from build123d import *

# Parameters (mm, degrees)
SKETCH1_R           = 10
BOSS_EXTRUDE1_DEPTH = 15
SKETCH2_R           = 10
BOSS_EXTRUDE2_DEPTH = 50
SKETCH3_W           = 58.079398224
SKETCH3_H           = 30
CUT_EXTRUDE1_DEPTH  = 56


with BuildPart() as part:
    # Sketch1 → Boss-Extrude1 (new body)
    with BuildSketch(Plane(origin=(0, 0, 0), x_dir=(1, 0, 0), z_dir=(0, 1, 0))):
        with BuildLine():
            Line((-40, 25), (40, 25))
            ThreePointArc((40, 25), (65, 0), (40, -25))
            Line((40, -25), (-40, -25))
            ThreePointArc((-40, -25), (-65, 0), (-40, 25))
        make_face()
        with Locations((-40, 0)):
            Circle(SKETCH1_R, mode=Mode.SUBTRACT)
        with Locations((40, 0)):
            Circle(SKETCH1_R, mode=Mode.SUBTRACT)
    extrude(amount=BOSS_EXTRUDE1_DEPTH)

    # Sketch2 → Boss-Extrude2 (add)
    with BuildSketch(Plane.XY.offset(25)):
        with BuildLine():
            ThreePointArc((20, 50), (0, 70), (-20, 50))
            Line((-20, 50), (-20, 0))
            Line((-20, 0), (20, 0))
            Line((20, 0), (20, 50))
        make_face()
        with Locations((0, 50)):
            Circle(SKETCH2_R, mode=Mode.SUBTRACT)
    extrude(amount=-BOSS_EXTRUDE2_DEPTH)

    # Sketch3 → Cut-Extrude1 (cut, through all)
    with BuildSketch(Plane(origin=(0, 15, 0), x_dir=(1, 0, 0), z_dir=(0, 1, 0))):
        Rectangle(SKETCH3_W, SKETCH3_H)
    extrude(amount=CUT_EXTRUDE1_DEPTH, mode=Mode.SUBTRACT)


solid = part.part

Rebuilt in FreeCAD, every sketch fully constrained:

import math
import FreeCAD as App
import Part
import Sketcher

V = App.Vector
Q = App.Units.Quantity


def add_polygon(sketch, points):
    """Adds a closed chain of lines whose ends are joined by coincident constraints."""
    first, n = sketch.GeometryCount, len(points)
    for a, b in zip(points, points[1:] + points[:1]):
        sketch.addGeometry(Part.LineSegment(App.Vector(*a, 0), App.Vector(*b, 0)), False)
    for i in range(n):
        sketch.addConstraint(Sketcher.Constraint("Coincident", first + i, 2, first + (i + 1) % n, 1))

doc = App.newDocument("Part")
body = doc.addObject("PartDesign::Body", "Body")

sketch1 = body.newObject("Sketcher::SketchObject", "Sketch")
sketch1.AttachmentSupport = (doc.getObject("XZ_Plane"), [""])
sketch1.MapMode = "FlatFace"
sketch1.addGeometry([
    Part.LineSegment(V(40, -25, 0), V(-40, -25, 0)),
    Part.ArcOfCircle(Part.Circle(V(-40, 0, 0), V(0, 0, 1), 25), math.radians(90), math.radians(270)),
    Part.LineSegment(V(-40, 25, 0), V(40, 25, 0)),
    Part.ArcOfCircle(Part.Circle(V(40, 0, 0), V(0, 0, 1), 25), math.radians(-90), math.radians(90)),
    Part.Circle(V(40, 0, 0), V(0, 0, 1), 10),
    Part.Circle(V(-40, 0, 0), V(0, 0, 1), 10),
], False)
sketch1.addConstraint([
    Sketcher.Constraint("Tangent", 0, 2, 1, 2),
    Sketcher.Constraint("Tangent", 1, 1, 2, 1),
    Sketcher.Constraint("Tangent", 2, 2, 3, 2),
    Sketcher.Constraint("Tangent", 3, 1, 0, 1),
    Sketcher.Constraint("Horizontal", 0),
    Sketcher.Constraint("Horizontal", 2),
    Sketcher.Constraint("Coincident", 4, 3, 3, 3),
    Sketcher.Constraint("Coincident", 5, 3, 1, 3),
    Sketcher.Constraint("Equal", 4, 5),
    Sketcher.Constraint("Symmetric", 1, 3, 3, 3, -1, 1),
    Sketcher.Constraint("Diameter", 4, Q("20 mm")),
    Sketcher.Constraint("Radius", 1, Q("25 mm")),
    Sketcher.Constraint("DistanceX", 0, 2, 0, 1, Q("80 mm")),
])
pad1 = body.newObject("PartDesign::Pad", "Pad")
pad1.Profile = sketch1
pad1.Length = 15
pad1.Reversed = True

sketch2 = body.newObject("Sketcher::SketchObject", "Sketch001")
sketch2.AttachmentSupport = (doc.getObject("XY_Plane"), [""])
sketch2.MapMode = "FlatFace"
sketch2.AttachmentOffset = App.Placement(V(0, 0, 25), App.Rotation())
sketch2.addGeometry([
    Part.ArcOfCircle(Part.Circle(V(0, 50, 0), V(0, 0, 1), 20), math.radians(0), math.radians(180)),
    Part.LineSegment(V(-20, 50, 0), V(-20, 0, 0)),
    Part.LineSegment(V(-20, 0, 0), V(20, 0, 0)),
    Part.LineSegment(V(20, 0, 0), V(20, 50, 0)),
    Part.Circle(V(0, 50, 0), V(0, 0, 1), 10),
], False)
sketch2.addConstraint([
    Sketcher.Constraint("Tangent", 0, 2, 1, 1),
    Sketcher.Constraint("Coincident", 1, 2, 2, 1),
    Sketcher.Constraint("Coincident", 2, 2, 3, 1),
    Sketcher.Constraint("Tangent", 3, 2, 0, 1),
    Sketcher.Constraint("Vertical", 1),
    Sketcher.Constraint("Horizontal", 2),
    Sketcher.Constraint("Vertical", 3),
    Sketcher.Constraint("Coincident", 4, 3, 0, 3),
    Sketcher.Constraint("Symmetric", 1, 2, 2, 2, -1, 1),
    Sketcher.Constraint("Diameter", 4, Q("20 mm")),
    Sketcher.Constraint("Radius", 0, Q("20 mm")),
    Sketcher.Constraint("DistanceY", 1, 2, 1, 1, Q("50 mm")),
])
pad2 = body.newObject("PartDesign::Pad", "Pad001")
pad2.Profile = sketch2
pad2.Length = 50
pad2.Reversed = True

sketch3 = body.newObject("Sketcher::SketchObject", "Sketch002")
sketch3.AttachmentSupport = (doc.getObject("XZ_Plane"), [""])
sketch3.MapMode = "FlatFace"
sketch3.AttachmentOffset = App.Placement(V(0, 0, -15), App.Rotation())
add_polygon(sketch3, [(-29.039699, -15), (-29.039699, 15), (29.039699, 15), (29.039699, -15)])
sketch3.addConstraint([
    Sketcher.Constraint("Vertical", 0),
    Sketcher.Constraint("Horizontal", 1),
    Sketcher.Constraint("Vertical", 2),
    Sketcher.Constraint("Horizontal", 3),
    Sketcher.Constraint("Symmetric", 0, 2, 2, 2, -1, 1),
    Sketcher.Constraint("DistanceY", 0, 1, 0, 2, Q("30 mm")),
    Sketcher.Constraint("DistanceX", 1, 1, 1, 2, Q("58.079398 mm")),
])
pocket1 = body.newObject("PartDesign::Pocket", "Pocket")
pocket1.Profile = sketch3
pocket1.Type = "ThroughAll"

doc.recompute()
